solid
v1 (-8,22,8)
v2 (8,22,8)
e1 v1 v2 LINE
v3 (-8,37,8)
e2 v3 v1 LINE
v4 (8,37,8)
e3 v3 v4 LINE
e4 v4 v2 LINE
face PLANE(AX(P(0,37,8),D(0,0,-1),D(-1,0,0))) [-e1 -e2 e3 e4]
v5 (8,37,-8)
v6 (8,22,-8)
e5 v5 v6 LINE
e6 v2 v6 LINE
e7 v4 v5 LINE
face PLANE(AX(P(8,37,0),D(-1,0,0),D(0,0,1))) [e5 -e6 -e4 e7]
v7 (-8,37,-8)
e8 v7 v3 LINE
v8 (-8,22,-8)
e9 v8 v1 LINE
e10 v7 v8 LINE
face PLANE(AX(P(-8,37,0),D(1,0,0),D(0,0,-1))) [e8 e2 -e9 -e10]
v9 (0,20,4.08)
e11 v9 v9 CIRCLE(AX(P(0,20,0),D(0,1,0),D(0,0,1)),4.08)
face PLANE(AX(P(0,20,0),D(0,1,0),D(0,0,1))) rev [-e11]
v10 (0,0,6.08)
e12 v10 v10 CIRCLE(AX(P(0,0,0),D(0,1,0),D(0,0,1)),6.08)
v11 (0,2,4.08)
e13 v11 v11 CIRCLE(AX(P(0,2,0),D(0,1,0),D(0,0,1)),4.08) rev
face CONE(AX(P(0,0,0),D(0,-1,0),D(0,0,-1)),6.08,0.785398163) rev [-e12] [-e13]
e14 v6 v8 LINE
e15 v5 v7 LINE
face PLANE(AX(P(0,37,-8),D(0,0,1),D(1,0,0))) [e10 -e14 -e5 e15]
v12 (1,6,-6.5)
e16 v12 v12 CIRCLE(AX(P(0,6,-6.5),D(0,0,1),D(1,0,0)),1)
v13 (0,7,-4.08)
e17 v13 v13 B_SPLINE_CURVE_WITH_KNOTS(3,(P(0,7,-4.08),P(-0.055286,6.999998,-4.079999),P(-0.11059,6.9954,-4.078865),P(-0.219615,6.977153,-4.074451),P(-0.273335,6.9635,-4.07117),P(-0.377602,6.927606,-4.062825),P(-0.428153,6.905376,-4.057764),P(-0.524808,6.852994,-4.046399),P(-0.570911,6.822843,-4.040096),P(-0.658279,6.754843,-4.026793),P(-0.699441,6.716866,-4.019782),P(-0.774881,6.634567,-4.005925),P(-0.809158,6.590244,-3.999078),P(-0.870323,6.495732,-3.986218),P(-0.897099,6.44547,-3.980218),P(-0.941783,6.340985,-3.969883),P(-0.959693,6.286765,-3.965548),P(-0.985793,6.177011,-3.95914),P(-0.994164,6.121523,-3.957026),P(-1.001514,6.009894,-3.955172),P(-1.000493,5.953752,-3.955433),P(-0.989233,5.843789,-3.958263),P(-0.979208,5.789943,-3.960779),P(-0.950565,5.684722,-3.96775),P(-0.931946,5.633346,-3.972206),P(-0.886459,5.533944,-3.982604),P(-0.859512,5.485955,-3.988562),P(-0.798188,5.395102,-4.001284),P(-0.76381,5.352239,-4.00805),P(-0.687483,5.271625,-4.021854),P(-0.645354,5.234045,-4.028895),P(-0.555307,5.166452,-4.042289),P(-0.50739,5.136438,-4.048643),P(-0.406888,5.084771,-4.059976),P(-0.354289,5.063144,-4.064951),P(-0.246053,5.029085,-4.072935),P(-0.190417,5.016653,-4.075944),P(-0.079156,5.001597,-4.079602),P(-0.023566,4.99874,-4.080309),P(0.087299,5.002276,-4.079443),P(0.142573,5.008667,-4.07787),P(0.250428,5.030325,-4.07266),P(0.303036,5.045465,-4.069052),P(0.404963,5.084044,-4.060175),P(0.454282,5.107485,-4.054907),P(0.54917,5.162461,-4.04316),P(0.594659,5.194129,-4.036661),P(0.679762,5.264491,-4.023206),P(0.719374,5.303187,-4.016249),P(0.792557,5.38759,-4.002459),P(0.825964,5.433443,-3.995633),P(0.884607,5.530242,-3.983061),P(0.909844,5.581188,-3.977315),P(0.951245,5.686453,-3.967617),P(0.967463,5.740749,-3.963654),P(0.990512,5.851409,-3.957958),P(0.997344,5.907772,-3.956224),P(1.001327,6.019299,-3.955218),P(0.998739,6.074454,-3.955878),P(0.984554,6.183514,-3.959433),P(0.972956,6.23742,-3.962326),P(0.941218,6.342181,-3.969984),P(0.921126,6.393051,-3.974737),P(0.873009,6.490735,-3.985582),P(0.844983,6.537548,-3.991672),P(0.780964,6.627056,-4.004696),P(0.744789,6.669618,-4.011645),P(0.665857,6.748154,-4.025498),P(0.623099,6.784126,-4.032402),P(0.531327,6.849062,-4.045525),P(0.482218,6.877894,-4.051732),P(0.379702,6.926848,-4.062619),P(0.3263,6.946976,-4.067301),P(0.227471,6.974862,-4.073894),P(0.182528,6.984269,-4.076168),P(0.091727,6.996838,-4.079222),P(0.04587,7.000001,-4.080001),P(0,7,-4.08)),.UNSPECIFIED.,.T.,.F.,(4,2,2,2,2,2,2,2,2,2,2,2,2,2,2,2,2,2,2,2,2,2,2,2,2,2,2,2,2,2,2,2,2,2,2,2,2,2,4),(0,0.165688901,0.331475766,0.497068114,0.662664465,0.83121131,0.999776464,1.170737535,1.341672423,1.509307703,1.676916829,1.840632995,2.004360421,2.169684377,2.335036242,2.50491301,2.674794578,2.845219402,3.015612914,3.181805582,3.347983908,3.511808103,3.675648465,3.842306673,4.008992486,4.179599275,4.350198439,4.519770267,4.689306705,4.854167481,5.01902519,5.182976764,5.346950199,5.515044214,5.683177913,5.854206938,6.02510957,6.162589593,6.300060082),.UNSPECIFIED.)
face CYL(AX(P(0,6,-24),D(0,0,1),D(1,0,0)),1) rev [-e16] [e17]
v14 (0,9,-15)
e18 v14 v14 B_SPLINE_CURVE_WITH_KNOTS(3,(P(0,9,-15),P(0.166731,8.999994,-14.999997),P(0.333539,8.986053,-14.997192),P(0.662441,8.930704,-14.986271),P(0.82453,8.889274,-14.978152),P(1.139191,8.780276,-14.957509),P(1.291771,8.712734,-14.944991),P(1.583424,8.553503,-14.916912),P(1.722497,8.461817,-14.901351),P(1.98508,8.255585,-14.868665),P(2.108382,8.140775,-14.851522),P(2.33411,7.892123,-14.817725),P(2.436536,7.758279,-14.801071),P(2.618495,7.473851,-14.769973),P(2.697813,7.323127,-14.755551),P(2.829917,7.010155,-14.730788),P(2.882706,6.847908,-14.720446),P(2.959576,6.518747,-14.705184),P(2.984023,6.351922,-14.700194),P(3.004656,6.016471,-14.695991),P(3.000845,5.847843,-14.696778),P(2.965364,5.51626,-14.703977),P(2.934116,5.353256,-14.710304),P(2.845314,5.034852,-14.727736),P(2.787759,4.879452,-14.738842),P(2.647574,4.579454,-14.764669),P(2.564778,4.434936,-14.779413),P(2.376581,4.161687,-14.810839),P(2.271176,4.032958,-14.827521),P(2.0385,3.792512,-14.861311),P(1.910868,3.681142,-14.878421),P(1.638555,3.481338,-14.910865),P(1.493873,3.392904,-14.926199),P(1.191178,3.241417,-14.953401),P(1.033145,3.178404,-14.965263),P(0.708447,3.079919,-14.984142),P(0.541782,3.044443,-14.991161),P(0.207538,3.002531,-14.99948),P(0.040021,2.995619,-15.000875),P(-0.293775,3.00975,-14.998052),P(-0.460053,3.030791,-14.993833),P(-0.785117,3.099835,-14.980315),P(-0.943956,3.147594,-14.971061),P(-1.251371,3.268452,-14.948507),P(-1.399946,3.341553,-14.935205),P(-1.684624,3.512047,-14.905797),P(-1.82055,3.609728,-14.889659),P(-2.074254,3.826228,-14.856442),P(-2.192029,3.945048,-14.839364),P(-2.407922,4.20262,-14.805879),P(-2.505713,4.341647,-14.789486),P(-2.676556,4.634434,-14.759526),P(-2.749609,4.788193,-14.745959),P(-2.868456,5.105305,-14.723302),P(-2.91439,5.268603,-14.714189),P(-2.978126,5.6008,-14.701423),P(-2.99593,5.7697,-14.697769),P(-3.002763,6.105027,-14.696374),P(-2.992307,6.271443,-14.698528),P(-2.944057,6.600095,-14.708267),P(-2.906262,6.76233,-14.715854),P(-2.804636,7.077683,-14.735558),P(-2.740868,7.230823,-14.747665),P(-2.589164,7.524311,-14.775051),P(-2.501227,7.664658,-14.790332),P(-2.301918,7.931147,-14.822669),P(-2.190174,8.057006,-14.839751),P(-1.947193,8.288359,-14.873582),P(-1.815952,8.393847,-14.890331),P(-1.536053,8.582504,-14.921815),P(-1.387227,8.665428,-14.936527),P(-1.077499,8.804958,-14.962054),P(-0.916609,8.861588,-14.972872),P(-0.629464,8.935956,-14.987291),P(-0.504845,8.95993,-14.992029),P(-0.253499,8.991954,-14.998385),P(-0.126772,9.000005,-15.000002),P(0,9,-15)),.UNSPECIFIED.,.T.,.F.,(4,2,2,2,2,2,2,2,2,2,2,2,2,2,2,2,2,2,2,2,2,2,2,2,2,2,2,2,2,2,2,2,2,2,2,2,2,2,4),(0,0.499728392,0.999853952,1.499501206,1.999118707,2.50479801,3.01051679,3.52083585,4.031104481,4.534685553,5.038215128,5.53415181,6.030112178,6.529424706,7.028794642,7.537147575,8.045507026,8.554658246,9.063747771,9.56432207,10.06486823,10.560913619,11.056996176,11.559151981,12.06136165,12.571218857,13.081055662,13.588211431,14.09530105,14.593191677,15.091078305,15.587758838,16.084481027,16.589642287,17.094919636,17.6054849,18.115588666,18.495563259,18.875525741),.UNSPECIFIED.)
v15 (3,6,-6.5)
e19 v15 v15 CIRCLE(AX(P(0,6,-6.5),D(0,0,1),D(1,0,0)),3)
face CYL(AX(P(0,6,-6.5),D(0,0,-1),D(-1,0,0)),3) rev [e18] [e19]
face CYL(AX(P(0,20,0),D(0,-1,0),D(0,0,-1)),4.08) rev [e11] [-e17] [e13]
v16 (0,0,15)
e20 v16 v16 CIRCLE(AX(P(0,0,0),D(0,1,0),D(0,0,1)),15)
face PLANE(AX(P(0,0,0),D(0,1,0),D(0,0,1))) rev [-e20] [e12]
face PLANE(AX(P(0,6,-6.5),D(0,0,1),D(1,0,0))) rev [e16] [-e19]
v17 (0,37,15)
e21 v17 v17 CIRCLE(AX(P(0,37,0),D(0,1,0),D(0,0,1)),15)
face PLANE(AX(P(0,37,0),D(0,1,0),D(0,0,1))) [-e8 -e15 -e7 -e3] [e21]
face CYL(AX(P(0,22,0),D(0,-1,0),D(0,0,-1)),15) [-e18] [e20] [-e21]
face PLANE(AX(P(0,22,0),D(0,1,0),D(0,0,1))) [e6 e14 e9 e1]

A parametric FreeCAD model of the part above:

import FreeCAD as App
import Part
import Sketcher
Q = App.Units.Quantity


def edges_at(feature, points):
    """Names of the edges that pass closest to the given points."""
    edges = feature.Shape.Edges
    near = lambda p: min(range(len(edges)), key=lambda i: edges[i].distToShape(Part.Vertex(*p))[0])
    return sorted({f"Edge{near(p) + 1}" for p in points})

doc = App.newDocument("Part")
body = doc.addObject("PartDesign::Body", "Body")

sketch1 = body.newObject("Sketcher::SketchObject", "Sketch")
sketch1.AttachmentSupport = (doc.getObject("XZ_Plane"), [""])
sketch1.MapMode = "FlatFace"
sketch1.addGeometry([
    Part.Circle(App.Vector(0, 0, 0), App.Vector(0, 0, 1), 6.5),
    Part.Circle(App.Vector(0, 0, 0), App.Vector(0, 0, 1), 4.1),
], False)
sketch1.addConstraint([
    Sketcher.Constraint("Coincident", 0, 3, -1, 1),
    Sketcher.Constraint("Coincident", 1, 3, -1, 1),
    Sketcher.Constraint("Diameter", 0, Q("13 mm")),
    Sketcher.Constraint("Diameter", 1, Q("8.16 mm")),
])
pad1 = body.newObject("PartDesign::Pad", "Pad")
pad1.Profile = sketch1
pad1.Length = 20
pad1.Reversed = True

sketch2 = body.newObject("Sketcher::SketchObject", "Sketch001")
sketch2.AttachmentSupport = (doc.getObject("XZ_Plane"), [""])
sketch2.MapMode = "FlatFace"
sketch2.AttachmentOffset = App.Placement(App.Vector(0, 0, -20), App.Rotation())
sketch2.addGeometry(Part.Circle(App.Vector(0, 0, 0), App.Vector(0, 0, 1), 15), False)
sketch2.addConstraint([
    Sketcher.Constraint("Coincident", 0, 3, -1, 1),
    Sketcher.Constraint("Diameter", 0, Q("30 mm")),
])
pad2 = body.newObject("PartDesign::Pad", "Pad001")
pad2.Profile = sketch2
pad2.Length = 2
pad2.Reversed = True

sketch3 = body.newObject("Sketcher::SketchObject", "Sketch002")
sketch3.AttachmentSupport = (doc.getObject("XZ_Plane"), [""])
sketch3.MapMode = "FlatFace"
sketch3.AttachmentOffset = App.Placement(App.Vector(0, 0, -22), App.Rotation())
sketch3.addGeometry([
    Part.Circle(App.Vector(0, 0, 0), App.Vector(0, 0, 1), 15),
    Part.LineSegment(App.Vector(8, 8, 0), App.Vector(-8, 8, 0)),
    Part.LineSegment(App.Vector(-8, 8, 0), App.Vector(-8, -8, 0)),
    Part.LineSegment(App.Vector(-8, -8, 0), App.Vector(8, -8, 0)),
    Part.LineSegment(App.Vector(8, -8, 0), App.Vector(8, 8, 0)),
], False)
sketch3.addConstraint([
    Sketcher.Constraint("Coincident", 1, 2, 2, 1),
    Sketcher.Constraint("Coincident", 2, 2, 3, 1),
    Sketcher.Constraint("Coincident", 3, 2, 4, 1),
    Sketcher.Constraint("Coincident", 4, 2, 1, 1),
    Sketcher.Constraint("Horizontal", 1),
    Sketcher.Constraint("Vertical", 2),
    Sketcher.Constraint("Horizontal", 3),
    Sketcher.Constraint("Vertical", 4),
    Sketcher.Constraint("Coincident", 0, 3, -1, 1),
    Sketcher.Constraint("Symmetric", 1, 2, 3, 2, -1, 1),
    Sketcher.Constraint("Equal", 3, 2),
    Sketcher.Constraint("Diameter", 0, Q("30 mm")),
    Sketcher.Constraint("DistanceX", 1, 2, 1, 1, Q("16 mm")),
])
pad3 = body.newObject("PartDesign::Pad", "Pad002")
pad3.Profile = sketch3
pad3.Length = 15
pad3.Reversed = True

sketch4 = body.newObject("Sketcher::SketchObject", "Sketch003")
sketch4.AttachmentSupport = (doc.getObject("XZ_Plane"), [""])
sketch4.MapMode = "FlatFace"
sketch4.addGeometry([
    Part.Circle(App.Vector(0, 0, 0), App.Vector(0, 0, 1), 15),
    Part.Circle(App.Vector(0, 0, 0), App.Vector(0, 0, 1), 6),
], False)
sketch4.addConstraint([
    Sketcher.Constraint("Coincident", 0, 3, -1, 1),
    Sketcher.Constraint("Coincident", 1, 3, -1, 1),
    Sketcher.Constraint("Diameter", 0, Q("30 mm")),
    Sketcher.Constraint("Diameter", 1, Q("13 mm")),
])
pad4 = body.newObject("PartDesign::Pad", "Pad003")
pad4.Profile = sketch4
pad4.Length = 20
pad4.Reversed = True

sketch5 = body.newObject("Sketcher::SketchObject", "Sketch004")
sketch5.AttachmentSupport = (doc.getObject("XY_Plane"), [""])
sketch5.MapMode = "FlatFace"
sketch5.addGeometry(Part.Circle(App.Vector(0, 6, 0), App.Vector(0, 0, 1), 1), False)
sketch5.addConstraint([
    Sketcher.Constraint("PointOnObject", 0, 3, -2),
    Sketcher.Constraint("Diameter", 0, Q("2 mm")),
    Sketcher.Constraint("DistanceY", -1, 1, 0, 3, Q("6 mm")),
])
pocket1 = body.newObject("PartDesign::Pocket", "Pocket")
pocket1.Profile = sketch5
pocket1.Length = 24

sketch6 = body.newObject("Sketcher::SketchObject", "Sketch005")
sketch6.AttachmentSupport = (doc.getObject("XY_Plane"), [""])
sketch6.MapMode = "FlatFace"
sketch6.AttachmentOffset = App.Placement(App.Vector(0, 0, -6.5), App.Rotation())
sketch6.addGeometry([
    Part.Circle(App.Vector(0, 6, 0), App.Vector(0, 0, 1), 3),
    Part.Circle(App.Vector(0, 6, 0), App.Vector(0, 0, 1), 1),
], False)
sketch6.addConstraint([
    Sketcher.Constraint("Coincident", 1, 3, 0, 3),
    Sketcher.Constraint("PointOnObject", 0, 3, -2),
    Sketcher.Constraint("Diameter", 0, Q("6 mm")),
    Sketcher.Constraint("Diameter", 1, Q("2 mm")),
    Sketcher.Constraint("DistanceY", -1, 1, 0, 3, Q("6 mm")),
])
pocket2 = body.newObject("PartDesign::Pocket", "Pocket001")
pocket2.Profile = sketch6
pocket2.Length = 10
doc.recompute()

chamfer = body.newObject("PartDesign::Chamfer", "Chamfer")
chamfer.Base = (pocket2, edges_at(pocket2, [(0, 0, -4.08)]))
chamfer.Size = 2

doc.recompute()
